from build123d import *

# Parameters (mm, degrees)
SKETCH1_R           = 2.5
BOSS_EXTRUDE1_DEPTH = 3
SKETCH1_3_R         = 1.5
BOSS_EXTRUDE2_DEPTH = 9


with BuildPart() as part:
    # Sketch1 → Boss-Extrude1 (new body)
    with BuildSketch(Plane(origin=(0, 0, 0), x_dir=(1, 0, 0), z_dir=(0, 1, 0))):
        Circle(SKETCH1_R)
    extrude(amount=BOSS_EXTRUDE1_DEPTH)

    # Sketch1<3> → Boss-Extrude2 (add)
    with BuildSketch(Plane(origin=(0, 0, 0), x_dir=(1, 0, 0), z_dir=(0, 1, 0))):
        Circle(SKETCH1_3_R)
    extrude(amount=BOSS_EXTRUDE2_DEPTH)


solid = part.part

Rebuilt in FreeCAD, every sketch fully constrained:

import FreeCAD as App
import Part
import Sketcher
from FreeCAD import Vector
Q = App.Units.Quantity

doc = App.newDocument("Part")
params = doc.addObject("Spreadsheet::Sheet", "Params")
for row, (alias, value) in enumerate([
    ("sketch1_diameter", "5 mm"),
    ("pad1_length", "3 mm"),
    ("sketch2_diameter", "3 mm"),
    ("pad2_length", "9 mm"),
], start=1):
    params.set(f"A{row}", alias)
    params.set(f"B{row}", "=" + value)
    params.setAlias(f"B{row}", alias)

body = doc.addObject("PartDesign::Body", "Body")

# Sketch on XZ plane
sketch1 = body.newObject("Sketcher::SketchObject", "Sketch")
sketch1.AttachmentSupport = (doc.getObject("XZ_Plane"), [""])
sketch1.MapMode = "FlatFace"
sketch1.addGeometry(Part.Circle(Vector(0, 0, 0), Vector(0, 0, 1), 2.5), False)
sketch1.addConstraint(Sketcher.Constraint("Coincident", 0, 3, -1, 1))
sketch1.addConstraint(Sketcher.Constraint("Diameter", 0, Q("5 mm")))
sketch1.setExpression("Constraints[1]", "Params.sketch1_diameter")
pad1 = body.newObject("PartDesign::Pad", "Pad")
pad1.Profile = sketch1
pad1.setExpression("Length", "Params.pad1_length")
pad1.Reversed = True

# Sketch on XZ plane
sketch2 = body.newObject("Sketcher::SketchObject", "Sketch001")
sketch2.AttachmentSupport = (doc.getObject("XZ_Plane"), [""])
sketch2.MapMode = "FlatFace"
sketch2.addGeometry(Part.Circle(Vector(0, 0, 0), Vector(0, 0, 1), 1.5), False)
sketch2.addConstraint(Sketcher.Constraint("Coincident", 0, 3, -1, 1))
sketch2.addConstraint(Sketcher.Constraint("Diameter", 0, Q("3 mm")))
sketch2.setExpression("Constraints[1]", "Params.sketch2_diameter")
pad2 = body.newObject("PartDesign::Pad", "Pad001")
pad2.Profile = sketch2
pad2.setExpression("Length", "Params.pad2_length")
pad2.Reversed = True

doc.recompute()
